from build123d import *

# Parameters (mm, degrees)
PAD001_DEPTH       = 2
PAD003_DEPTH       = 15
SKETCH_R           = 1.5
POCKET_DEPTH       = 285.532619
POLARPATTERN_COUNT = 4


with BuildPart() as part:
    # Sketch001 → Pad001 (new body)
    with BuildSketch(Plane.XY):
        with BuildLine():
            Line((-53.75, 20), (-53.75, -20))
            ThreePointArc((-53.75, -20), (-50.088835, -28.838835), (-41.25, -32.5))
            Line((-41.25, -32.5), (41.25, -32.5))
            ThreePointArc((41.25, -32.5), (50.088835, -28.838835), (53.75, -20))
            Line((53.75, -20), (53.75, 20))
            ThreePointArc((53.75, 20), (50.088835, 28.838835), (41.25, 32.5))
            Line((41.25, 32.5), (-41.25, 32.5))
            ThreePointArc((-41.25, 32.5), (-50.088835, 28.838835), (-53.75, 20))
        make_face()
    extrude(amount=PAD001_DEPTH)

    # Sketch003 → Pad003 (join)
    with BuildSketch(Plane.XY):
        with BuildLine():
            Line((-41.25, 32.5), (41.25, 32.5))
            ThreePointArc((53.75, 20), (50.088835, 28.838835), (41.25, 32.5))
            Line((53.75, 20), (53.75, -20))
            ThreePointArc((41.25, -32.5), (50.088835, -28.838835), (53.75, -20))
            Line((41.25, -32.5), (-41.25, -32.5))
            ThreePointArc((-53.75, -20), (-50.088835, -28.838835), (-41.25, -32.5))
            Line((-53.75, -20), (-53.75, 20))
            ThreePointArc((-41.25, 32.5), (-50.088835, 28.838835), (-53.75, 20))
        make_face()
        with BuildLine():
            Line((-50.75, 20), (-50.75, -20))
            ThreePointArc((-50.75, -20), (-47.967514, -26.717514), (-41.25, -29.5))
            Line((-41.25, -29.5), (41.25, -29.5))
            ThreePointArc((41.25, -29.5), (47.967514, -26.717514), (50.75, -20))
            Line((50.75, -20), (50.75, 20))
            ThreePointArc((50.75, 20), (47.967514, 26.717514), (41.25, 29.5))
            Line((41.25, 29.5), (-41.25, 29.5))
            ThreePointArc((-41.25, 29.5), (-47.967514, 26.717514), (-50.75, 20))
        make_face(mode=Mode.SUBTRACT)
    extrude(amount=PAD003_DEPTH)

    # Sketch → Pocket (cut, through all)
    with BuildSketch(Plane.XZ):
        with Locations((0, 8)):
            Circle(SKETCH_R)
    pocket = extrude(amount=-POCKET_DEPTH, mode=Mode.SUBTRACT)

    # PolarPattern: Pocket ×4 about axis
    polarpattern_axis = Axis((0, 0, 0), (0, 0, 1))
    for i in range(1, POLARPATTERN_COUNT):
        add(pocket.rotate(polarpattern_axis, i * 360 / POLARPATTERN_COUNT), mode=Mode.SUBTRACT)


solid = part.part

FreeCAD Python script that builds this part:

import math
import FreeCAD as App
import Part
import Sketcher
Q = App.Units.Quantity

doc = App.newDocument("Part")
body = doc.addObject("PartDesign::Body", "Body")

# Sketch on XY plane
sketch1 = doc.addObject("Sketcher::SketchObject", "Sketch")
body.addObject(sketch1)
sketch1.AttachmentSupport = (doc.XY_Plane, [""])
sketch1.MapMode = "FlatFace"
sketch1.addGeometry([
    Part.LineSegment(App.Vector(-54, 20, 0), App.Vector(-54, -20, 0)),  # 0
    Part.ArcOfCircle(Part.Circle(App.Vector(-41, -20, 0), App.Vector(0, 0, 1), 12), math.radians(180), math.radians(270)),  # 1
    Part.LineSegment(App.Vector(-41, -32, 0), App.Vector(41, -32, 0)),  # 2
    Part.ArcOfCircle(Part.Circle(App.Vector(41, -20, 0), App.Vector(0, 0, 1), 12), math.radians(-90), math.radians(0)),  # 3
    Part.LineSegment(App.Vector(54, -20, 0), App.Vector(54, 20, 0)),  # 4
    Part.ArcOfCircle(Part.Circle(App.Vector(41, 20, 0), App.Vector(0, 0, 1), 12), math.radians(0), math.radians(90)),  # 5
    Part.LineSegment(App.Vector(41, 32, 0), App.Vector(-41, 32, 0)),  # 6
    Part.ArcOfCircle(Part.Circle(App.Vector(-41, 20, 0), App.Vector(0, 0, 1), 12), math.radians(90), math.radians(180)),  # 7
], False)
sketch1.addConstraint([
    Sketcher.Constraint("Tangent", 0, 2, 1, 1),
    Sketcher.Constraint("Tangent", 1, 2, 2, 1),
    Sketcher.Constraint("Tangent", 2, 2, 3, 1),
    Sketcher.Constraint("Tangent", 3, 2, 4, 1),
    Sketcher.Constraint("Tangent", 4, 2, 5, 1),
    Sketcher.Constraint("Tangent", 5, 2, 6, 1),
    Sketcher.Constraint("Tangent", 6, 2, 7, 1),
    Sketcher.Constraint("Tangent", 7, 2, 0, 1),
    Sketcher.Constraint("Vertical", 0),
    Sketcher.Constraint("Horizontal", 2),
    Sketcher.Constraint("Vertical", 4),
    Sketcher.Constraint("Horizontal", 6),
    Sketcher.Constraint("Equal", 1, 3),
    Sketcher.Constraint("Equal", 3, 5),
    Sketcher.Constraint("Equal", 5, 7),
    Sketcher.Constraint("Symmetric", 1, 3, 5, 3, -1, 1),
    Sketcher.Constraint("Radius", 1, Q("12.499999 mm")),
    Sketcher.Constraint("DistanceY", 0, 2, 0, 1, Q("40 mm")),
    Sketcher.Constraint("DistanceX", 2, 1, 2, 2, Q("82.5 mm")),
])
pad1 = doc.addObject("PartDesign::Pad", "Pad")
body.addObject(pad1)
pad1.Profile = sketch1
pad1.Length = 2

# Sketch on XY plane
sketch2 = doc.addObject("Sketcher::SketchObject", "Sketch001")
body.addObject(sketch2)
sketch2.AttachmentSupport = (doc.XY_Plane, [""])
sketch2.MapMode = "FlatFace"
sketch2.addGeometry([
    Part.LineSegment(App.Vector(41, 32, 0), App.Vector(-41, 32, 0)),  # 0
    Part.ArcOfCircle(Part.Circle(App.Vector(-41, 20, 0), App.Vector(0, 0, 1), 12), math.radians(90), math.radians(180)),  # 1
    Part.LineSegment(App.Vector(-54, 20, 0), App.Vector(-54, -20, 0)),  # 2
    Part.ArcOfCircle(Part.Circle(App.Vector(-41, -20, 0), App.Vector(0, 0, 1), 12), math.radians(180), math.radians(270)),  # 3
    Part.LineSegment(App.Vector(-41, -32, 0), App.Vector(41, -32, 0)),  # 4
    Part.ArcOfCircle(Part.Circle(App.Vector(41, -20, 0), App.Vector(0, 0, 1), 12), math.radians(-90), math.radians(0)),  # 5
    Part.LineSegment(App.Vector(54, -20, 0), App.Vector(54, 20, 0)),  # 6
    Part.ArcOfCircle(Part.Circle(App.Vector(41, 20, 0), App.Vector(0, 0, 1), 12), math.radians(0), math.radians(90)),  # 7
    Part.ArcOfCircle(Part.Circle(App.Vector(-41, 20, 0), App.Vector(0, 0, 1), 10), math.radians(90), math.radians(180)),  # 8
    Part.LineSegment(App.Vector(-41, 30, 0), App.Vector(41, 30, 0)),  # 9
    Part.ArcOfCircle(Part.Circle(App.Vector(41, 20, 0), App.Vector(0, 0, 1), 10), math.radians(0), math.radians(90)),  # 10
    Part.LineSegment(App.Vector(51, 20, 0), App.Vector(51, -20, 0)),  # 11
    Part.ArcOfCircle(Part.Circle(App.Vector(41, -20, 0), App.Vector(0, 0, 1), 10), math.radians(-90), math.radians(0)),  # 12
    Part.LineSegment(App.Vector(41, -30, 0), App.Vector(-41, -30, 0)),  # 13
    Part.ArcOfCircle(Part.Circle(App.Vector(-41, -20, 0), App.Vector(0, 0, 1), 10), math.radians(-180), math.radians(-90)),  # 14
    Part.LineSegment(App.Vector(-51, -20, 0), App.Vector(-51, 20, 0)),  # 15
], False)
sketch2.addConstraint([
    Sketcher.Constraint("Tangent", 0, 2, 1, 1),
    Sketcher.Constraint("Tangent", 1, 2, 2, 1),
    Sketcher.Constraint("Tangent", 2, 2, 3, 1),
    Sketcher.Constraint("Tangent", 3, 2, 4, 1),
    Sketcher.Constraint("Tangent", 4, 2, 5, 1),
    Sketcher.Constraint("Tangent", 5, 2, 6, 1),
    Sketcher.Constraint("Tangent", 6, 2, 7, 1),
    Sketcher.Constraint("Tangent", 7, 2, 0, 1),
    Sketcher.Constraint("Tangent", 8, 1, 9, 1),
    Sketcher.Constraint("Tangent", 9, 2, 10, 2),
    Sketcher.Constraint("Tangent", 10, 1, 11, 1),
    Sketcher.Constraint("Tangent", 11, 2, 12, 2),
    Sketcher.Constraint("Tangent", 12, 1, 13, 1),
    Sketcher.Constraint("Tangent", 13, 2, 14, 2),
    Sketcher.Constraint("Tangent", 14, 1, 15, 1),
    Sketcher.Constraint("Tangent", 15, 2, 8, 2),
    Sketcher.Constraint("Horizontal", 0),
    Sketcher.Constraint("Vertical", 2),
    Sketcher.Constraint("Horizontal", 4),
    Sketcher.Constraint("Vertical", 6),
    Sketcher.Constraint("Horizontal", 9),
    Sketcher.Constraint("Vertical", 11),
    Sketcher.Constraint("Horizontal", 13),
    Sketcher.Constraint("Vertical", 15),
    Sketcher.Constraint("Coincident", 8, 3, 1, 3),
    Sketcher.Constraint("Coincident", 10, 3, 7, 3),
    Sketcher.Constraint("Coincident", 12, 3, 5, 3),
    Sketcher.Constraint("Equal", 1, 3),
    Sketcher.Constraint("Equal", 3, 5),
    Sketcher.Constraint("Equal", 5, 7),
    Sketcher.Constraint("Equal", 12, 14),
    Sketcher.Constraint("Symmetric", 1, 3, 5, 3, -1, 1),
    Sketcher.Constraint("Radius", 1, Q("12.499999 mm")),
    Sketcher.Constraint("Radius", 8, Q("9.500001 mm")),
    Sketcher.Constraint("DistanceY", 2, 2, 2, 1, Q("40 mm")),
    Sketcher.Constraint("DistanceX", 0, 2, 0, 1, Q("82.5 mm")),
])
pad2 = doc.addObject("PartDesign::Pad", "Pad001")
body.addObject(pad2)
pad2.Profile = sketch2
pad2.Length = 15

# Sketch on XZ plane
sketch3 = doc.addObject("Sketcher::SketchObject", "Sketch002")
body.addObject(sketch3)
sketch3.AttachmentSupport = (doc.XZ_Plane, [""])
sketch3.MapMode = "FlatFace"
sketch3.addGeometry(Part.Circle(App.Vector(0, 8, 0), App.Vector(0, 0, 1), 1.5), False)
sketch3.addConstraint([
    Sketcher.Constraint("PointOnObject", 0, 3, -2),
    Sketcher.Constraint("Diameter", 0, Q("3 mm")),
    Sketcher.Constraint("DistanceY", -1, 1, 0, 3, Q("8 mm")),
])
pocket1 = doc.addObject("PartDesign::Pocket", "Pocket")
body.addObject(pocket1)
pocket1.Profile = sketch3
pocket1.Type = "ThroughAll"
doc.recompute()

polarpattern = doc.addObject("PartDesign::PolarPattern", "PolarPattern")
body.addObject(polarpattern)
polarpattern.Originals = [pocket1]
polarpattern.Axis = (doc.Z_Axis, [""])
polarpattern.Angle = 360
polarpattern.Occurrences = 4
body.Tip = polarpattern

doc.recompute()
